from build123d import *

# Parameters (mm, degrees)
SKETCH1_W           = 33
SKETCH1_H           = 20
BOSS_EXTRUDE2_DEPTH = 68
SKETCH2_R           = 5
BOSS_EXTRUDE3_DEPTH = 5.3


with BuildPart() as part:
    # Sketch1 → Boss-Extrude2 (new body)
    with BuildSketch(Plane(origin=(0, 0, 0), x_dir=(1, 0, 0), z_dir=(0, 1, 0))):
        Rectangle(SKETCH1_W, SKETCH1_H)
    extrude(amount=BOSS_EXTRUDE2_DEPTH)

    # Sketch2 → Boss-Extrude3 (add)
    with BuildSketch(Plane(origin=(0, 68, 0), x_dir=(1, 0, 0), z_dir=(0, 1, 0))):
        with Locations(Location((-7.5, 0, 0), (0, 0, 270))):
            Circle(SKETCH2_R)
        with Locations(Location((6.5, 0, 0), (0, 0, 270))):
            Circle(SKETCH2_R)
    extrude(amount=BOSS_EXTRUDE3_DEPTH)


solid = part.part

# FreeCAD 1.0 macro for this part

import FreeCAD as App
import Part
import Sketcher

V = App.Vector

doc = App.newDocument("Part")
body = doc.addObject("PartDesign::Body", "Body")

# Sketch on XZ plane
sketch1 = body.newObject("Sketcher::SketchObject", "Sketch")
sketch1.AttachmentSupport = (doc.getObject("XZ_Plane"), [""])
sketch1.MapMode = "FlatFace"
sketch1.addGeometry(Part.LineSegment(V(-16, -10, 0), V(-16, 10, 0)), False)
sketch1.addGeometry(Part.LineSegment(V(-16, 10, 0), V(16, 10, 0)), False)
sketch1.addGeometry(Part.LineSegment(V(16, 10, 0), V(16, -10, 0)), False)
sketch1.addGeometry(Part.LineSegment(V(16, -10, 0), V(-16, -10, 0)), False)
sketch1.addConstraint(Sketcher.Constraint("Coincident", 0, 2, 1, 1))
sketch1.addConstraint(Sketcher.Constraint("Coincident", 1, 2, 2, 1))
sketch1.addConstraint(Sketcher.Constraint("Coincident", 2, 2, 3, 1))
sketch1.addConstraint(Sketcher.Constraint("Coincident", 3, 2, 0, 1))
sketch1.addConstraint(Sketcher.Constraint("Vertical", 0))
sketch1.addConstraint(Sketcher.Constraint("Horizontal", 1))
sketch1.addConstraint(Sketcher.Constraint("Vertical", 2))
sketch1.addConstraint(Sketcher.Constraint("Horizontal", 3))
sketch1.addConstraint(Sketcher.Constraint("Symmetric", 0, 2, 2, 2, -1, 1))
sketch1.addConstraint(Sketcher.Constraint("DistanceX", 1, 1, 1, 2, 33.0))
sketch1.addConstraint(Sketcher.Constraint("DistanceY", 0, 1, 0, 2, 20.0))
pad1 = body.newObject("PartDesign::Pad", "Pad")
pad1.Profile = sketch1
pad1.Length = 68
pad1.Reversed = True

# Sketch on XZ plane
sketch2 = body.newObject("Sketcher::SketchObject", "Sketch001")
sketch2.AttachmentSupport = (doc.getObject("XZ_Plane"), [""])
sketch2.MapMode = "FlatFace"
sketch2.AttachmentOffset = App.Placement(V(0, 0, -68), App.Rotation())
sketch2.addGeometry(Part.Circle(V(-8, 0, 0), V(0, 0, 1), 5), False)
sketch2.addGeometry(Part.Circle(V(6, 0, 0), V(0, 0, 1), 5), False)
sketch2.addConstraint(Sketcher.Constraint("Equal", 0, 1))
sketch2.addConstraint(Sketcher.Constraint("PointOnObject", 0, 3, -1))
sketch2.addConstraint(Sketcher.Constraint("PointOnObject", 1, 3, -1))
sketch2.addConstraint(Sketcher.Constraint("Diameter", 0, 10.0))
sketch2.addConstraint(Sketcher.Constraint("DistanceX", 0, 3, 1, 3, 14.0))
sketch2.addConstraint(Sketcher.Constraint("DistanceX", 0, 3, -1, 1, 7.5))
pad2 = body.newObject("PartDesign::Pad", "Pad001")
pad2.Profile = sketch2
pad2.Length = 5.3
pad2.Reversed = True

doc.recompute()
